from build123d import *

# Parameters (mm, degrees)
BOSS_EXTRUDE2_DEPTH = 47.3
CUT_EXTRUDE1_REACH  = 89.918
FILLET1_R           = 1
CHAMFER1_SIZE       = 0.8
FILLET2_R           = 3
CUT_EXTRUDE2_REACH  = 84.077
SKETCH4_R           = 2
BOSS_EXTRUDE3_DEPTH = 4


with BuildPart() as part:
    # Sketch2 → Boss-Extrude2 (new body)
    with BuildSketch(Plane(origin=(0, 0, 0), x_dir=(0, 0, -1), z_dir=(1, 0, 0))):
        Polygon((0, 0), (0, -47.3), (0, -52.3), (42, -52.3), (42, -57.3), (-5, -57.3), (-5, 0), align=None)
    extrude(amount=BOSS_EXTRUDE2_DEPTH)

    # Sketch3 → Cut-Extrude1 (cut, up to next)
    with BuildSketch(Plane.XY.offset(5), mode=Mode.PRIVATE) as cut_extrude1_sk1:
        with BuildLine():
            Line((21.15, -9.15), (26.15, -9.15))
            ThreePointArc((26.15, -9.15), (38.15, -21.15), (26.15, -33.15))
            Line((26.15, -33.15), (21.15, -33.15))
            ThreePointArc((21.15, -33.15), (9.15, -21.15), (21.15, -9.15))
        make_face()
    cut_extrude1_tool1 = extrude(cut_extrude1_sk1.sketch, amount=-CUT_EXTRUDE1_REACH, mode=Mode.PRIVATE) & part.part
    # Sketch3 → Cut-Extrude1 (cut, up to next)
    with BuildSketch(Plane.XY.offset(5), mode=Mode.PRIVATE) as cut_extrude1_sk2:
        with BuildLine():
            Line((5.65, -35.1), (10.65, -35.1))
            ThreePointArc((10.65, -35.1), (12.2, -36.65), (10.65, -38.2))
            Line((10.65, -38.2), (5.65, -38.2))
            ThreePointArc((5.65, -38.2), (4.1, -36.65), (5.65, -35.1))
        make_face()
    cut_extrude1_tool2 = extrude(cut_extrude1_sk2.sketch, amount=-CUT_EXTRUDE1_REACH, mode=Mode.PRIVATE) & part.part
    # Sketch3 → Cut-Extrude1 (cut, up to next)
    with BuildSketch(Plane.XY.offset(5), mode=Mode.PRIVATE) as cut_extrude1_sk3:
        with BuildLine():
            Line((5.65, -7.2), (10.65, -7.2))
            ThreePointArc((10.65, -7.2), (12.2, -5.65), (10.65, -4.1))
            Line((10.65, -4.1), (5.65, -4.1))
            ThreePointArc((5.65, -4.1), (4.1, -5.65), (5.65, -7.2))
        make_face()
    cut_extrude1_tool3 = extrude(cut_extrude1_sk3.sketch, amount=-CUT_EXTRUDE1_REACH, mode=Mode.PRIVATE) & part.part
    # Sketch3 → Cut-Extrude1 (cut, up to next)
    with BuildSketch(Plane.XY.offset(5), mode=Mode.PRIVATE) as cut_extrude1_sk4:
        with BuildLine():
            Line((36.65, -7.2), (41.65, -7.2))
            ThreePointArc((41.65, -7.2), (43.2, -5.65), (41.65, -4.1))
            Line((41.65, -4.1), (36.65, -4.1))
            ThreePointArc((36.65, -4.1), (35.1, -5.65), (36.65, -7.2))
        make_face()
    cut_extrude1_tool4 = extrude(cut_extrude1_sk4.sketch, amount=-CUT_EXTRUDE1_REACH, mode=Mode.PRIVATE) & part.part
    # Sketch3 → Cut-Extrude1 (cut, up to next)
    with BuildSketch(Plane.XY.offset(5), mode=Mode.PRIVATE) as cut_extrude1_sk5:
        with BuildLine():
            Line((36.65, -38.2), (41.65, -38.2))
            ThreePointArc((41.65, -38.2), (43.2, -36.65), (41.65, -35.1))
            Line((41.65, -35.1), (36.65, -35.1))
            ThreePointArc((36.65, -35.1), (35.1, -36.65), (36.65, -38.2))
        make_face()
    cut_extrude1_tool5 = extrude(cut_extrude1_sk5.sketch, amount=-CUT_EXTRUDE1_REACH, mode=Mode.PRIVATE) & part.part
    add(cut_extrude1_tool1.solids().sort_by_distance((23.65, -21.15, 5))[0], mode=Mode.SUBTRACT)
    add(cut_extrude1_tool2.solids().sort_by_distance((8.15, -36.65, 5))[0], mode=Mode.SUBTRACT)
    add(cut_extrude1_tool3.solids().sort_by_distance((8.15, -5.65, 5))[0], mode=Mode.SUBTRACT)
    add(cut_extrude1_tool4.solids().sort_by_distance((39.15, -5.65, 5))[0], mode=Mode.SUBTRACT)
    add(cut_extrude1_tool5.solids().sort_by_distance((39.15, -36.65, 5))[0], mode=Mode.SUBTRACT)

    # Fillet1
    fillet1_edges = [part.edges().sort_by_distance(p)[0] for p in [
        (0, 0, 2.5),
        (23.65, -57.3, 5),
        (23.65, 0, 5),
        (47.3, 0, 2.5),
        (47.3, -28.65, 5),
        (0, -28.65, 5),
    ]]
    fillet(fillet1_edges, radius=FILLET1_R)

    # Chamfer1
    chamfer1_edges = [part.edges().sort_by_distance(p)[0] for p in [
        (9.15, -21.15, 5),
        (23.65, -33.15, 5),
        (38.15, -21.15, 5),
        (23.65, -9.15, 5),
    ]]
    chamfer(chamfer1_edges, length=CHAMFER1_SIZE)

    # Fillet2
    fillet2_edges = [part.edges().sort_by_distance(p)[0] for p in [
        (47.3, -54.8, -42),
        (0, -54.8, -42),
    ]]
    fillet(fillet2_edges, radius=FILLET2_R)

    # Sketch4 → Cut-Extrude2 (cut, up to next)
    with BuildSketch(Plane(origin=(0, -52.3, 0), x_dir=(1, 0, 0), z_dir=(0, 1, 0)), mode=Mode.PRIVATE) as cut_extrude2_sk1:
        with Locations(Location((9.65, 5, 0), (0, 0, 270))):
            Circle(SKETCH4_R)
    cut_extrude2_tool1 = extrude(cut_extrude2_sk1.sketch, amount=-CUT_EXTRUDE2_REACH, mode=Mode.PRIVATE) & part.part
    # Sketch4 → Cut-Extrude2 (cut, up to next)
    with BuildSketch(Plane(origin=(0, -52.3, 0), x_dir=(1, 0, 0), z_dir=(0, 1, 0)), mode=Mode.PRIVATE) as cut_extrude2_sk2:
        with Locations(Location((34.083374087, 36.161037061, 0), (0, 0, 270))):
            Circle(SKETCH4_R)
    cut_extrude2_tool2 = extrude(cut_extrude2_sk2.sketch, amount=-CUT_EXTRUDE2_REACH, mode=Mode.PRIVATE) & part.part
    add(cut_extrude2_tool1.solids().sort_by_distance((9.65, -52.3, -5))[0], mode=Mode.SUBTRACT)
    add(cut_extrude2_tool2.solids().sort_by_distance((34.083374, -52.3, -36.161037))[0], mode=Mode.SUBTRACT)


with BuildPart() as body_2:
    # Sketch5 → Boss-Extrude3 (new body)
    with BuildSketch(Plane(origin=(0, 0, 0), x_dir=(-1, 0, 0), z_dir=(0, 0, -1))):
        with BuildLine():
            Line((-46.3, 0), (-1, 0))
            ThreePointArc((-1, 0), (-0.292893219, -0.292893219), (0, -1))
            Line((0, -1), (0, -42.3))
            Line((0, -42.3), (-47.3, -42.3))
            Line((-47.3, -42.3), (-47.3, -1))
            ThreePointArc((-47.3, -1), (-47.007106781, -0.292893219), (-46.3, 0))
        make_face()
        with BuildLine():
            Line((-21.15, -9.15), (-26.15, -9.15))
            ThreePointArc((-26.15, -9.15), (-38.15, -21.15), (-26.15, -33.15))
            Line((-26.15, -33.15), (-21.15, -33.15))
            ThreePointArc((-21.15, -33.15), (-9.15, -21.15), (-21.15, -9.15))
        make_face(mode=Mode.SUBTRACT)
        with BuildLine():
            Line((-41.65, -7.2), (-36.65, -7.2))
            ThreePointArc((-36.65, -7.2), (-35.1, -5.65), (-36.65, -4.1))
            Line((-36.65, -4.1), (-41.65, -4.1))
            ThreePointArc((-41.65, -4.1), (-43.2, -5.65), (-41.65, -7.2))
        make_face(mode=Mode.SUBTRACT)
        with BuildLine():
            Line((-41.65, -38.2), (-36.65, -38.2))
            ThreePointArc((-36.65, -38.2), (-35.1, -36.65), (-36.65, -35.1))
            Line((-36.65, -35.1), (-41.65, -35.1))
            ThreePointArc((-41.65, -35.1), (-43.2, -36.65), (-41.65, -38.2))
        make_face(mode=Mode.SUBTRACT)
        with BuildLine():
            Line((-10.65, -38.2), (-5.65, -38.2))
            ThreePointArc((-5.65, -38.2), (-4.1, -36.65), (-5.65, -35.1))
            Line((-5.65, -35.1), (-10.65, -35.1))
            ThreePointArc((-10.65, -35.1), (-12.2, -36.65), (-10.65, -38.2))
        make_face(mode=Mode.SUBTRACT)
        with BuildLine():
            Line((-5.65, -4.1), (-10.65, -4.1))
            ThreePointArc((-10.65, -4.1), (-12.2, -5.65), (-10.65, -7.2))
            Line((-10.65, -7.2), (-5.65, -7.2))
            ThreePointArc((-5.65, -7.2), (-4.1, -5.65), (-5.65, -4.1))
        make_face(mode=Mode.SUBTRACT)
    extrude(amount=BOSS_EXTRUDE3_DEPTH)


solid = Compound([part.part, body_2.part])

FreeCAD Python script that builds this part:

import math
import FreeCAD as App
import Part
import Sketcher
from FreeCAD import Vector


def edges_at(feature, points):
    """Names of the edges that pass closest to the given points."""
    edges = feature.Shape.Edges
    near = lambda p: min(range(len(edges)), key=lambda i: edges[i].distToShape(Part.Vertex(*p))[0])
    return sorted({f"Edge{near(p) + 1}" for p in points})

doc = App.newDocument("Part")
body = doc.addObject("PartDesign::Body", "Body")

sketch1 = doc.addObject("Sketcher::SketchObject", "Sketch")
body.addObject(sketch1)
sketch1.AttachmentSupport = (doc.YZ_Plane, [""])
sketch1.MapMode = "FlatFace"
sketch1.addGeometry([
    Part.LineSegment(Vector(-52, 0, 0), Vector(0, 0, 0)),
    Part.LineSegment(Vector(0, 0, 0), Vector(0, 5, 0)),
    Part.LineSegment(Vector(0, 5, 0), Vector(-57, 5, 0)),
    Part.LineSegment(Vector(-57, 5, 0), Vector(-57, -42, 0)),
    Part.LineSegment(Vector(-57, -42, 0), Vector(-52, -42, 0)),
    Part.LineSegment(Vector(-52, -42, 0), Vector(-52, 0, 0)),
], False)
sketch1.addConstraint([
    Sketcher.Constraint("Coincident", 0, 2, 1, 1),
    Sketcher.Constraint("Coincident", 1, 2, 2, 1),
    Sketcher.Constraint("Coincident", 2, 2, 3, 1),
    Sketcher.Constraint("Coincident", 3, 2, 4, 1),
    Sketcher.Constraint("Coincident", 4, 2, 5, 1),
    Sketcher.Constraint("Coincident", 5, 2, 0, 1),
    Sketcher.Constraint("Horizontal", 0),
    Sketcher.Constraint("Vertical", 1),
    Sketcher.Constraint("Horizontal", 2),
    Sketcher.Constraint("Vertical", 3),
    Sketcher.Constraint("Horizontal", 4),
    Sketcher.Constraint("Vertical", 5),
    Sketcher.Constraint("Coincident", 0, 2, -1, 1),
    Sketcher.Constraint("Equal", 4, 1),
    Sketcher.Constraint("DistanceX", 4, 1, 4, 2, 5.0),
    Sketcher.Constraint("DistanceY", 3, 2, 3, 1, 47.0),
    Sketcher.Constraint("DistanceX", 0, 1, 0, 2, 52.3),
])
pad1 = doc.addObject("PartDesign::Pad", "Pad")
body.addObject(pad1)
pad1.Profile = sketch1
pad1.Length = 47.3

sketch2 = doc.addObject("Sketcher::SketchObject", "Sketch001")
body.addObject(sketch2)
sketch2.AttachmentSupport = (doc.XY_Plane, [""])
sketch2.MapMode = "FlatFace"
sketch2.AttachmentOffset = App.Placement(Vector(0, 0, 5), App.Rotation())
sketch2.addGeometry([
    Part.LineSegment(Vector(26, -9, 0), Vector(21, -9, 0)),
    Part.ArcOfCircle(Part.Circle(Vector(21, -21, 0), Vector(0, 0, 1), 12), math.radians(90), math.radians(270)),
    Part.LineSegment(Vector(21, -33, 0), Vector(26, -33, 0)),
    Part.ArcOfCircle(Part.Circle(Vector(26, -21, 0), Vector(0, 0, 1), 12), math.radians(-90), math.radians(90)),
], False)
sketch2.addConstraint([
    Sketcher.Constraint("Tangent", 0, 2, 1, 1),
    Sketcher.Constraint("Tangent", 1, 2, 2, 1),
    Sketcher.Constraint("Tangent", 2, 2, 3, 1),
    Sketcher.Constraint("Tangent", 3, 2, 0, 1),
    Sketcher.Constraint("Horizontal", 0),
    Sketcher.Constraint("Horizontal", 2),
    Sketcher.Constraint("Radius", 1, 12.0),
    Sketcher.Constraint("DistanceX", 0, 2, 0, 1, 5.0),
    Sketcher.Constraint("DistanceX", -1, 1, 1, 3, 21.15),
    Sketcher.Constraint("DistanceY", 1, 3, -1, 1, 21.15),
])
pocket1 = doc.addObject("PartDesign::Pocket", "Pocket")
body.addObject(pocket1)
pocket1.Profile = sketch2
pocket1.Type = "UpToFirst"

sketch3 = doc.addObject("Sketcher::SketchObject", "Sketch002")
body.addObject(sketch3)
sketch3.AttachmentSupport = (doc.XY_Plane, [""])
sketch3.MapMode = "FlatFace"
sketch3.AttachmentOffset = App.Placement(Vector(0, 0, 5), App.Rotation())
sketch3.addGeometry([
    Part.LineSegment(Vector(10.7, -35.1, 0), Vector(5.7, -35.1, 0)),
    Part.ArcOfCircle(Part.Circle(Vector(5.7, -36.6, 0), Vector(0, 0, 1), 1.6), math.radians(90), math.radians(270)),
    Part.LineSegment(Vector(5.7, -38.2, 0), Vector(10.7, -38.2, 0)),
    Part.ArcOfCircle(Part.Circle(Vector(10.7, -36.6, 0), Vector(0, 0, 1), 1.6), math.radians(-90), math.radians(90)),
], False)
sketch3.addConstraint([
    Sketcher.Constraint("Tangent", 0, 2, 1, 1),
    Sketcher.Constraint("Tangent", 1, 2, 2, 1),
    Sketcher.Constraint("Tangent", 2, 2, 3, 1),
    Sketcher.Constraint("Tangent", 3, 2, 0, 1),
    Sketcher.Constraint("Horizontal", 0),
    Sketcher.Constraint("Horizontal", 2),
    Sketcher.Constraint("DistanceX", 0, 2, 0, 1, 5.0),
    Sketcher.Constraint("Radius", 1, 1.55),
    Sketcher.Constraint("DistanceY", 0, 2, -1, 1, 35.1),
    Sketcher.Constraint("DistanceX", -1, 1, 1, 3, 5.65),
])
pocket2 = doc.addObject("PartDesign::Pocket", "Pocket001")
body.addObject(pocket2)
pocket2.Profile = sketch3
pocket2.Type = "UpToFirst"

sketch4 = doc.addObject("Sketcher::SketchObject", "Sketch003")
body.addObject(sketch4)
sketch4.AttachmentSupport = (doc.XY_Plane, [""])
sketch4.MapMode = "FlatFace"
sketch4.AttachmentOffset = App.Placement(Vector(0, 0, 5), App.Rotation())
sketch4.addGeometry([
    Part.LineSegment(Vector(5.7, -7.2, 0), Vector(10.7, -7.2, 0)),
    Part.ArcOfCircle(Part.Circle(Vector(10.7, -5.7, 0), Vector(0, 0, 1), 1.6), math.radians(-90), math.radians(90)),
    Part.LineSegment(Vector(10.7, -4.1, 0), Vector(5.7, -4.1, 0)),
    Part.ArcOfCircle(Part.Circle(Vector(5.7, -5.7, 0), Vector(0, 0, 1), 1.6), math.radians(90), math.radians(270)),
], False)
sketch4.addConstraint([
    Sketcher.Constraint("Tangent", 0, 2, 1, 1),
    Sketcher.Constraint("Tangent", 1, 2, 2, 1),
    Sketcher.Constraint("Tangent", 2, 2, 3, 1),
    Sketcher.Constraint("Tangent", 3, 2, 0, 1),
    Sketcher.Constraint("Horizontal", 0),
    Sketcher.Constraint("Horizontal", 2),
    Sketcher.Constraint("DistanceX", 0, 1, 0, 2, 5.0),
    Sketcher.Constraint("Radius", 1, 1.55),
    Sketcher.Constraint("DistanceY", 0, 2, -1, 1, 7.2),
    Sketcher.Constraint("DistanceX", -1, 1, 1, 3, 10.65),
])
pocket3 = doc.addObject("PartDesign::Pocket", "Pocket002")
body.addObject(pocket3)
pocket3.Profile = sketch4
pocket3.Type = "UpToFirst"

sketch5 = doc.addObject("Sketcher::SketchObject", "Sketch004")
body.addObject(sketch5)
sketch5.AttachmentSupport = (doc.XY_Plane, [""])
sketch5.MapMode = "FlatFace"
sketch5.AttachmentOffset = App.Placement(Vector(0, 0, 5), App.Rotation())
sketch5.addGeometry([
    Part.LineSegment(Vector(36.6, -7.2, 0), Vector(41.6, -7.2, 0)),
    Part.ArcOfCircle(Part.Circle(Vector(41.6, -5.7, 0), Vector(0, 0, 1), 1.6), math.radians(-90), math.radians(90)),
    Part.LineSegment(Vector(41.6, -4.1, 0), Vector(36.6, -4.1, 0)),
    Part.ArcOfCircle(Part.Circle(Vector(36.6, -5.7, 0), Vector(0, 0, 1), 1.6), math.radians(90), math.radians(270)),
], False)
sketch5.addConstraint([
    Sketcher.Constraint("Tangent", 0, 2, 1, 1),
    Sketcher.Constraint("Tangent", 1, 2, 2, 1),
    Sketcher.Constraint("Tangent", 2, 2, 3, 1),
    Sketcher.Constraint("Tangent", 3, 2, 0, 1),
    Sketcher.Constraint("Horizontal", 0),
    Sketcher.Constraint("Horizontal", 2),
    Sketcher.Constraint("DistanceX", 0, 1, 0, 2, 5.0),
    Sketcher.Constraint("Radius", 1, 1.55),
    Sketcher.Constraint("DistanceY", 0, 2, -1, 1, 7.2),
    Sketcher.Constraint("DistanceX", -1, 1, 1, 3, 41.65),
])
pocket4 = doc.addObject("PartDesign::Pocket", "Pocket003")
body.addObject(pocket4)
pocket4.Profile = sketch5
pocket4.Type = "UpToFirst"

sketch6 = doc.addObject("Sketcher::SketchObject", "Sketch005")
body.addObject(sketch6)
sketch6.AttachmentSupport = (doc.XY_Plane, [""])
sketch6.MapMode = "FlatFace"
sketch6.AttachmentOffset = App.Placement(Vector(0, 0, 5), App.Rotation())
sketch6.addGeometry([
    Part.LineSegment(Vector(36.6, -38.2, 0), Vector(41.6, -38.2, 0)),
    Part.ArcOfCircle(Part.Circle(Vector(41.6, -36.6, 0), Vector(0, 0, 1), 1.6), math.radians(-90), math.radians(90)),
    Part.LineSegment(Vector(41.6, -35.1, 0), Vector(36.6, -35.1, 0)),
    Part.ArcOfCircle(Part.Circle(Vector(36.6, -36.6, 0), Vector(0, 0, 1), 1.6), math.radians(90), math.radians(270)),
], False)
sketch6.addConstraint([
    Sketcher.Constraint("Tangent", 0, 2, 1, 1),
    Sketcher.Constraint("Tangent", 1, 2, 2, 1),
    Sketcher.Constraint("Tangent", 2, 2, 3, 1),
    Sketcher.Constraint("Tangent", 3, 2, 0, 1),
    Sketcher.Constraint("Horizontal", 0),
    Sketcher.Constraint("Horizontal", 2),
    Sketcher.Constraint("DistanceX", 0, 1, 0, 2, 5.0),
    Sketcher.Constraint("Radius", 1, 1.55),
    Sketcher.Constraint("DistanceY", 0, 2, -1, 1, 38.2),
    Sketcher.Constraint("DistanceX", -1, 1, 1, 3, 41.65),
])
pocket5 = doc.addObject("PartDesign::Pocket", "Pocket004")
body.addObject(pocket5)
pocket5.Profile = sketch6
pocket5.Type = "UpToFirst"
doc.recompute()

fillet = doc.addObject("PartDesign::Fillet", "Fillet")
body.addObject(fillet)
fillet.Base = (pocket5, edges_at(pocket5, [
    (0, 0, 2.5),
    (23.65, -57.3, 5),
    (23.65, 0, 5),
    (47.3, 0, 2.5),
    (47.3, -28.65, 5),
    (0, -28.65, 5),
]))
fillet.Radius = 1
doc.recompute()

chamfer = doc.addObject("PartDesign::Chamfer", "Chamfer")
body.addObject(chamfer)
chamfer.Base = (fillet, edges_at(fillet, [
    (9.15, -21.15, 5),
    (23.65, -33.15, 5),
    (38.15, -21.15, 5),
    (23.65, -9.15, 5),
]))
chamfer.Size = 0.8
doc.recompute()

fillet2 = doc.addObject("PartDesign::Fillet", "Fillet001")
body.addObject(fillet2)
fillet2.Base = (chamfer, edges_at(chamfer, [(47.3, -54.8, -42), (0, -54.8, -42)]))
fillet2.Radius = 3

sketch7 = doc.addObject("Sketcher::SketchObject", "Sketch006")
body.addObject(sketch7)
sketch7.AttachmentSupport = (doc.XZ_Plane, [""])
sketch7.MapMode = "FlatFace"
sketch7.AttachmentOffset = App.Placement(Vector(0, 0, 52.3), App.Rotation())
sketch7.addGeometry(Part.Circle(Vector(9.7, -5, 0), Vector(0, 0, 1), 2), False)
sketch7.addConstraint([
    Sketcher.Constraint("Diameter", 0, 4.0),
    Sketcher.Constraint("DistanceY", 0, 3, -1, 1, 5.0),
    Sketcher.Constraint("DistanceX", -1, 1, 0, 3, 9.65),
])
pocket6 = doc.addObject("PartDesign::Pocket", "Pocket005")
body.addObject(pocket6)
pocket6.Profile = sketch7
pocket6.Type = "UpToFirst"
pocket6.Reversed = True

sketch8 = doc.addObject("Sketcher::SketchObject", "Sketch007")
body.addObject(sketch8)
sketch8.AttachmentSupport = (doc.XZ_Plane, [""])
sketch8.MapMode = "FlatFace"
sketch8.AttachmentOffset = App.Placement(Vector(0, 0, 52.3), App.Rotation())
sketch8.addGeometry(Part.Circle(Vector(34.1, -36.2, 0), Vector(0, 0, 1), 2), False)
sketch8.addConstraint([
    Sketcher.Constraint("Diameter", 0, 4.0),
    Sketcher.Constraint("DistanceX", -1, 1, 0, 3, 34.083374),
    Sketcher.Constraint("DistanceY", 0, 3, -1, 1, 36.161037),
])
pocket7 = doc.addObject("PartDesign::Pocket", "Pocket006")
body.addObject(pocket7)
pocket7.Profile = sketch8
pocket7.Type = "UpToFirst"
pocket7.Reversed = True
body2 = doc.addObject("PartDesign::Body", "Body001")

sketch9 = doc.addObject("Sketcher::SketchObject", "Sketch008")
body2.addObject(sketch9)
sketch9.AttachmentSupport = (doc.getObject("XY_Plane001"), [""])
sketch9.MapMode = "FlatFace"
sketch9.addGeometry([
    Part.LineSegment(Vector(1, 0, 0), Vector(46.3, 0, 0)),
    Part.ArcOfCircle(Part.Circle(Vector(46.3, -1, 0), Vector(0, 0, 1), 1), math.radians(0), math.radians(90)),
    Part.LineSegment(Vector(47.3, -1, 0), Vector(47.3, -42.3, 0)),
    Part.LineSegment(Vector(47.3, -42.3, 0), Vector(0, -42.3, 0)),
    Part.LineSegment(Vector(0, -42.3, 0), Vector(0, -1, 0)),
    Part.ArcOfCircle(Part.Circle(Vector(1, -1, 0), Vector(0, 0, 1), 1), math.radians(90), math.radians(180)),
    Part.ArcOfCircle(Part.Circle(Vector(10.7, -36.6, 0), Vector(0, 0, 1), 1.6), math.radians(-90), math.radians(90)),
    Part.LineSegment(Vector(10.7, -35.1, 0), Vector(5.7, -35.1, 0)),
    Part.ArcOfCircle(Part.Circle(Vector(5.7, -36.6, 0), Vector(0, 0, 1), 1.6), math.radians(90), math.radians(270)),
    Part.LineSegment(Vector(5.7, -38.2, 0), Vector(10.7, -38.2, 0)),
    Part.ArcOfCircle(Part.Circle(Vector(41.6, -36.6, 0), Vector(0, 0, 1), 1.6), math.radians(-90), math.radians(90)),
    Part.LineSegment(Vector(41.6, -35.1, 0), Vector(36.6, -35.1, 0)),
    Part.ArcOfCircle(Part.Circle(Vector(36.6, -36.6, 0), Vector(0, 0, 1), 1.6), math.radians(90), math.radians(270)),
    Part.LineSegment(Vector(36.6, -38.2, 0), Vector(41.6, -38.2, 0)),
    Part.ArcOfCircle(Part.Circle(Vector(21.1, -21.1, 0), Vector(0, 0, 1), 12), math.radians(90), math.radians(270)),
    Part.LineSegment(Vector(21.1, -33.1, 0), Vector(26.1, -33.1, 0)),
    Part.ArcOfCircle(Part.Circle(Vector(26.1, -21.1, 0), Vector(0, 0, 1), 12), math.radians(-90), math.radians(90)),
    Part.LineSegment(Vector(26.1, -9.2, 0), Vector(21.1, -9.2, 0)),
    Part.ArcOfCircle(Part.Circle(Vector(5.7, -5.7, 0), Vector(0, 0, 1), 1.6), math.radians(90), math.radians(270)),
    Part.LineSegment(Vector(5.7, -7.2, 0), Vector(10.7, -7.2, 0)),
    Part.ArcOfCircle(Part.Circle(Vector(10.7, -5.7, 0), Vector(0, 0, 1), 1.6), math.radians(-90), math.radians(90)),
    Part.LineSegment(Vector(10.7, -4.1, 0), Vector(5.7, -4.1, 0)),
    Part.ArcOfCircle(Part.Circle(Vector(41.6, -5.7, 0), Vector(0, 0, 1), 1.6), math.radians(-90), math.radians(90)),
    Part.LineSegment(Vector(41.6, -4.1, 0), Vector(36.6, -4.1, 0)),
    Part.ArcOfCircle(Part.Circle(Vector(36.6, -5.7, 0), Vector(0, 0, 1), 1.6), math.radians(90), math.radians(270)),
    Part.LineSegment(Vector(36.6, -7.2, 0), Vector(41.6, -7.2, 0)),
], False)
sketch9.addConstraint([
    Sketcher.Constraint("Tangent", 0, 2, 1, 2),
    Sketcher.Constraint("Tangent", 1, 1, 2, 1),
    Sketcher.Constraint("Coincident", 2, 2, 3, 1),
    Sketcher.Constraint("Coincident", 3, 2, 4, 1),
    Sketcher.Constraint("Tangent", 4, 2, 5, 2),
    Sketcher.Constraint("Tangent", 5, 1, 0, 1),
    Sketcher.Constraint("Tangent", 6, 2, 7, 1),
    Sketcher.Constraint("Tangent", 7, 2, 8, 1),
    Sketcher.Constraint("Tangent", 8, 2, 9, 1),
    Sketcher.Constraint("Tangent", 9, 2, 6, 1),
    Sketcher.Constraint("Tangent", 10, 2, 11, 1),
    Sketcher.Constraint("Tangent", 11, 2, 12, 1),
    Sketcher.Constraint("Tangent", 12, 2, 13, 1),
    Sketcher.Constraint("Tangent", 13, 2, 10, 1),
    Sketcher.Constraint("Tangent", 14, 2, 15, 1),
    Sketcher.Constraint("Tangent", 15, 2, 16, 1),
    Sketcher.Constraint("Tangent", 16, 2, 17, 1),
    Sketcher.Constraint("Tangent", 17, 2, 14, 1),
    Sketcher.Constraint("Tangent", 18, 2, 19, 1),
    Sketcher.Constraint("Tangent", 19, 2, 20, 1),
    Sketcher.Constraint("Tangent", 20, 2, 21, 1),
    Sketcher.Constraint("Tangent", 21, 2, 18, 1),
    Sketcher.Constraint("Tangent", 22, 2, 23, 1),
    Sketcher.Constraint("Tangent", 23, 2, 24, 1),
    Sketcher.Constraint("Tangent", 24, 2, 25, 1),
    Sketcher.Constraint("Tangent", 25, 2, 22, 1),
    Sketcher.Constraint("Horizontal", 0),
    Sketcher.Constraint("Vertical", 2),
    Sketcher.Constraint("Horizontal", 3),
    Sketcher.Constraint("Vertical", 4),
    Sketcher.Constraint("Horizontal", 7),
    Sketcher.Constraint("Horizontal", 9),
    Sketcher.Constraint("Horizontal", 11),
    Sketcher.Constraint("Horizontal", 13),
    Sketcher.Constraint("Horizontal", 15),
    Sketcher.Constraint("Horizontal", 17),
    Sketcher.Constraint("Horizontal", 19),
    Sketcher.Constraint("Horizontal", 21),
    Sketcher.Constraint("Horizontal", 23),
    Sketcher.Constraint("Horizontal", 25),
    Sketcher.Constraint("Equal", 1, 5),
    Sketcher.Constraint("Equal", 8, 10),
    Sketcher.Constraint("Equal", 12, 18),
    Sketcher.Constraint("Equal", 20, 22),
    Sketcher.Constraint("PointOnObject", 0, 2, -1),
    Sketcher.Constraint("PointOnObject", 3, 2, -2),
    Sketcher.Constraint("Horizontal", 8, 3, 10, 3),
    Sketcher.Constraint("Horizontal", 20, 3, 22, 3),
    Sketcher.Constraint("Vertical", 8, 3, 18, 3),
    Sketcher.Constraint("Vertical", 6, 3, 20, 3),
    Sketcher.Constraint("Vertical", 10, 3, 22, 3),
    Sketcher.Constraint("Vertical", 12, 3, 24, 3),
    Sketcher.Constraint("Equal", 9, 11),
    Sketcher.Constraint("Equal", 13, 15),
    Sketcher.Constraint("Radius", 1, 1.0),
    Sketcher.Constraint("Radius", 14, 12.0),
    Sketcher.Constraint("DistanceX", 7, 2, 7, 1, 5.0),
    Sketcher.Constraint("Radius", 6, 1.55),
    Sketcher.Constraint("DistanceX", 0, 1, 0, 2, 45.3),
    Sketcher.Constraint("DistanceY", 2, 2, 2, 1, 41.3),
    Sketcher.Constraint("DistanceX", 6, 3, 10, 3, 31.0),
    Sketcher.Constraint("DistanceY", 8, 3, 18, 3, 31.0),
    Sketcher.Constraint("DistanceY", 6, 2, -1, 1, 35.1),
    Sketcher.Constraint("DistanceX", 6, 3, 14, 3, 10.5),
    Sketcher.Constraint("DistanceY", 6, 3, 14, 3, 15.5),
    Sketcher.Constraint("DistanceX", -1, 1, 6, 3, 10.65),
])
pad2 = doc.addObject("PartDesign::Pad", "Pad001")
body2.addObject(pad2)
pad2.Profile = sketch9
pad2.Length = 4
pad2.Reversed = True

doc.recompute()
